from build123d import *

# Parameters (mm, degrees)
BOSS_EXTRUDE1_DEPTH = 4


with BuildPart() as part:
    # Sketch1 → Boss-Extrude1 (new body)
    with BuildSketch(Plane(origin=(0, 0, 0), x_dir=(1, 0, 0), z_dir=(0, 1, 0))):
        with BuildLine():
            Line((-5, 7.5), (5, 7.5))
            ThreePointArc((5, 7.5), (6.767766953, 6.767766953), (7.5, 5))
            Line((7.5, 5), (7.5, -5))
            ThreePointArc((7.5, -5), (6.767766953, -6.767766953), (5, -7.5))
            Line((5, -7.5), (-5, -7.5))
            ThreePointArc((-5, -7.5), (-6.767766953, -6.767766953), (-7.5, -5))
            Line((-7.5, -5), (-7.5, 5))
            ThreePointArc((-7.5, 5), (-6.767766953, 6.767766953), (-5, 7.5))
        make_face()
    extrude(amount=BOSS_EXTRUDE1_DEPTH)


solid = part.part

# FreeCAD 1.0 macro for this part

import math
import FreeCAD as App
import Part
import Sketcher
Q = App.Units.Quantity

doc = App.newDocument("Part")
body = doc.addObject("PartDesign::Body", "Body")

# Sketch on XZ plane
sketch1 = body.newObject("Sketcher::SketchObject", "Sketch")
sketch1.AttachmentSupport = (doc.getObject("XZ_Plane"), [""])
sketch1.MapMode = "FlatFace"
sketch1.addGeometry(Part.LineSegment(App.Vector(5, -7.5, 0), App.Vector(-5, -7.5, 0)), False)
sketch1.addGeometry(Part.ArcOfCircle(Part.Circle(App.Vector(-5, -5, 0), App.Vector(0, 0, 1), 2.5), math.radians(180), math.radians(270)), False)
sketch1.addGeometry(Part.LineSegment(App.Vector(-7.5, -5, 0), App.Vector(-7.5, 5, 0)), False)
sketch1.addGeometry(Part.ArcOfCircle(Part.Circle(App.Vector(-5, 5, 0), App.Vector(0, 0, 1), 2.5), math.radians(90), math.radians(180)), False)
sketch1.addGeometry(Part.LineSegment(App.Vector(-5, 7.5, 0), App.Vector(5, 7.5, 0)), False)
sketch1.addGeometry(Part.ArcOfCircle(Part.Circle(App.Vector(5, 5, 0), App.Vector(0, 0, 1), 2.5), math.radians(0), math.radians(90)), False)
sketch1.addGeometry(Part.LineSegment(App.Vector(7.5, 5, 0), App.Vector(7.5, -5, 0)), False)
sketch1.addGeometry(Part.ArcOfCircle(Part.Circle(App.Vector(5, -5, 0), App.Vector(0, 0, 1), 2.5), math.radians(-90), math.radians(0)), False)
sketch1.addConstraint(Sketcher.Constraint("Tangent", 0, 2, 1, 2))
sketch1.addConstraint(Sketcher.Constraint("Tangent", 1, 1, 2, 1))
sketch1.addConstraint(Sketcher.Constraint("Tangent", 2, 2, 3, 2))
sketch1.addConstraint(Sketcher.Constraint("Tangent", 3, 1, 4, 1))
sketch1.addConstraint(Sketcher.Constraint("Tangent", 4, 2, 5, 2))
sketch1.addConstraint(Sketcher.Constraint("Tangent", 5, 1, 6, 1))
sketch1.addConstraint(Sketcher.Constraint("Tangent", 6, 2, 7, 2))
sketch1.addConstraint(Sketcher.Constraint("Tangent", 7, 1, 0, 1))
sketch1.addConstraint(Sketcher.Constraint("Horizontal", 0))
sketch1.addConstraint(Sketcher.Constraint("Vertical", 2))
sketch1.addConstraint(Sketcher.Constraint("Horizontal", 4))
sketch1.addConstraint(Sketcher.Constraint("Vertical", 6))
sketch1.addConstraint(Sketcher.Constraint("Equal", 1, 3))
sketch1.addConstraint(Sketcher.Constraint("Equal", 3, 5))
sketch1.addConstraint(Sketcher.Constraint("Equal", 5, 7))
sketch1.addConstraint(Sketcher.Constraint("Symmetric", 1, 3, 5, 3, -1, 1))
sketch1.addConstraint(Sketcher.Constraint("Equal", 4, 2))
sketch1.addConstraint(Sketcher.Constraint("Radius", 1, Q("2.5 mm")))
sketch1.addConstraint(Sketcher.Constraint("DistanceX", 0, 2, 0, 1, Q("10 mm")))
pad1 = body.newObject("PartDesign::Pad", "Pad")
pad1.Profile = sketch1
pad1.Length = 4
pad1.Reversed = True

doc.recompute()
